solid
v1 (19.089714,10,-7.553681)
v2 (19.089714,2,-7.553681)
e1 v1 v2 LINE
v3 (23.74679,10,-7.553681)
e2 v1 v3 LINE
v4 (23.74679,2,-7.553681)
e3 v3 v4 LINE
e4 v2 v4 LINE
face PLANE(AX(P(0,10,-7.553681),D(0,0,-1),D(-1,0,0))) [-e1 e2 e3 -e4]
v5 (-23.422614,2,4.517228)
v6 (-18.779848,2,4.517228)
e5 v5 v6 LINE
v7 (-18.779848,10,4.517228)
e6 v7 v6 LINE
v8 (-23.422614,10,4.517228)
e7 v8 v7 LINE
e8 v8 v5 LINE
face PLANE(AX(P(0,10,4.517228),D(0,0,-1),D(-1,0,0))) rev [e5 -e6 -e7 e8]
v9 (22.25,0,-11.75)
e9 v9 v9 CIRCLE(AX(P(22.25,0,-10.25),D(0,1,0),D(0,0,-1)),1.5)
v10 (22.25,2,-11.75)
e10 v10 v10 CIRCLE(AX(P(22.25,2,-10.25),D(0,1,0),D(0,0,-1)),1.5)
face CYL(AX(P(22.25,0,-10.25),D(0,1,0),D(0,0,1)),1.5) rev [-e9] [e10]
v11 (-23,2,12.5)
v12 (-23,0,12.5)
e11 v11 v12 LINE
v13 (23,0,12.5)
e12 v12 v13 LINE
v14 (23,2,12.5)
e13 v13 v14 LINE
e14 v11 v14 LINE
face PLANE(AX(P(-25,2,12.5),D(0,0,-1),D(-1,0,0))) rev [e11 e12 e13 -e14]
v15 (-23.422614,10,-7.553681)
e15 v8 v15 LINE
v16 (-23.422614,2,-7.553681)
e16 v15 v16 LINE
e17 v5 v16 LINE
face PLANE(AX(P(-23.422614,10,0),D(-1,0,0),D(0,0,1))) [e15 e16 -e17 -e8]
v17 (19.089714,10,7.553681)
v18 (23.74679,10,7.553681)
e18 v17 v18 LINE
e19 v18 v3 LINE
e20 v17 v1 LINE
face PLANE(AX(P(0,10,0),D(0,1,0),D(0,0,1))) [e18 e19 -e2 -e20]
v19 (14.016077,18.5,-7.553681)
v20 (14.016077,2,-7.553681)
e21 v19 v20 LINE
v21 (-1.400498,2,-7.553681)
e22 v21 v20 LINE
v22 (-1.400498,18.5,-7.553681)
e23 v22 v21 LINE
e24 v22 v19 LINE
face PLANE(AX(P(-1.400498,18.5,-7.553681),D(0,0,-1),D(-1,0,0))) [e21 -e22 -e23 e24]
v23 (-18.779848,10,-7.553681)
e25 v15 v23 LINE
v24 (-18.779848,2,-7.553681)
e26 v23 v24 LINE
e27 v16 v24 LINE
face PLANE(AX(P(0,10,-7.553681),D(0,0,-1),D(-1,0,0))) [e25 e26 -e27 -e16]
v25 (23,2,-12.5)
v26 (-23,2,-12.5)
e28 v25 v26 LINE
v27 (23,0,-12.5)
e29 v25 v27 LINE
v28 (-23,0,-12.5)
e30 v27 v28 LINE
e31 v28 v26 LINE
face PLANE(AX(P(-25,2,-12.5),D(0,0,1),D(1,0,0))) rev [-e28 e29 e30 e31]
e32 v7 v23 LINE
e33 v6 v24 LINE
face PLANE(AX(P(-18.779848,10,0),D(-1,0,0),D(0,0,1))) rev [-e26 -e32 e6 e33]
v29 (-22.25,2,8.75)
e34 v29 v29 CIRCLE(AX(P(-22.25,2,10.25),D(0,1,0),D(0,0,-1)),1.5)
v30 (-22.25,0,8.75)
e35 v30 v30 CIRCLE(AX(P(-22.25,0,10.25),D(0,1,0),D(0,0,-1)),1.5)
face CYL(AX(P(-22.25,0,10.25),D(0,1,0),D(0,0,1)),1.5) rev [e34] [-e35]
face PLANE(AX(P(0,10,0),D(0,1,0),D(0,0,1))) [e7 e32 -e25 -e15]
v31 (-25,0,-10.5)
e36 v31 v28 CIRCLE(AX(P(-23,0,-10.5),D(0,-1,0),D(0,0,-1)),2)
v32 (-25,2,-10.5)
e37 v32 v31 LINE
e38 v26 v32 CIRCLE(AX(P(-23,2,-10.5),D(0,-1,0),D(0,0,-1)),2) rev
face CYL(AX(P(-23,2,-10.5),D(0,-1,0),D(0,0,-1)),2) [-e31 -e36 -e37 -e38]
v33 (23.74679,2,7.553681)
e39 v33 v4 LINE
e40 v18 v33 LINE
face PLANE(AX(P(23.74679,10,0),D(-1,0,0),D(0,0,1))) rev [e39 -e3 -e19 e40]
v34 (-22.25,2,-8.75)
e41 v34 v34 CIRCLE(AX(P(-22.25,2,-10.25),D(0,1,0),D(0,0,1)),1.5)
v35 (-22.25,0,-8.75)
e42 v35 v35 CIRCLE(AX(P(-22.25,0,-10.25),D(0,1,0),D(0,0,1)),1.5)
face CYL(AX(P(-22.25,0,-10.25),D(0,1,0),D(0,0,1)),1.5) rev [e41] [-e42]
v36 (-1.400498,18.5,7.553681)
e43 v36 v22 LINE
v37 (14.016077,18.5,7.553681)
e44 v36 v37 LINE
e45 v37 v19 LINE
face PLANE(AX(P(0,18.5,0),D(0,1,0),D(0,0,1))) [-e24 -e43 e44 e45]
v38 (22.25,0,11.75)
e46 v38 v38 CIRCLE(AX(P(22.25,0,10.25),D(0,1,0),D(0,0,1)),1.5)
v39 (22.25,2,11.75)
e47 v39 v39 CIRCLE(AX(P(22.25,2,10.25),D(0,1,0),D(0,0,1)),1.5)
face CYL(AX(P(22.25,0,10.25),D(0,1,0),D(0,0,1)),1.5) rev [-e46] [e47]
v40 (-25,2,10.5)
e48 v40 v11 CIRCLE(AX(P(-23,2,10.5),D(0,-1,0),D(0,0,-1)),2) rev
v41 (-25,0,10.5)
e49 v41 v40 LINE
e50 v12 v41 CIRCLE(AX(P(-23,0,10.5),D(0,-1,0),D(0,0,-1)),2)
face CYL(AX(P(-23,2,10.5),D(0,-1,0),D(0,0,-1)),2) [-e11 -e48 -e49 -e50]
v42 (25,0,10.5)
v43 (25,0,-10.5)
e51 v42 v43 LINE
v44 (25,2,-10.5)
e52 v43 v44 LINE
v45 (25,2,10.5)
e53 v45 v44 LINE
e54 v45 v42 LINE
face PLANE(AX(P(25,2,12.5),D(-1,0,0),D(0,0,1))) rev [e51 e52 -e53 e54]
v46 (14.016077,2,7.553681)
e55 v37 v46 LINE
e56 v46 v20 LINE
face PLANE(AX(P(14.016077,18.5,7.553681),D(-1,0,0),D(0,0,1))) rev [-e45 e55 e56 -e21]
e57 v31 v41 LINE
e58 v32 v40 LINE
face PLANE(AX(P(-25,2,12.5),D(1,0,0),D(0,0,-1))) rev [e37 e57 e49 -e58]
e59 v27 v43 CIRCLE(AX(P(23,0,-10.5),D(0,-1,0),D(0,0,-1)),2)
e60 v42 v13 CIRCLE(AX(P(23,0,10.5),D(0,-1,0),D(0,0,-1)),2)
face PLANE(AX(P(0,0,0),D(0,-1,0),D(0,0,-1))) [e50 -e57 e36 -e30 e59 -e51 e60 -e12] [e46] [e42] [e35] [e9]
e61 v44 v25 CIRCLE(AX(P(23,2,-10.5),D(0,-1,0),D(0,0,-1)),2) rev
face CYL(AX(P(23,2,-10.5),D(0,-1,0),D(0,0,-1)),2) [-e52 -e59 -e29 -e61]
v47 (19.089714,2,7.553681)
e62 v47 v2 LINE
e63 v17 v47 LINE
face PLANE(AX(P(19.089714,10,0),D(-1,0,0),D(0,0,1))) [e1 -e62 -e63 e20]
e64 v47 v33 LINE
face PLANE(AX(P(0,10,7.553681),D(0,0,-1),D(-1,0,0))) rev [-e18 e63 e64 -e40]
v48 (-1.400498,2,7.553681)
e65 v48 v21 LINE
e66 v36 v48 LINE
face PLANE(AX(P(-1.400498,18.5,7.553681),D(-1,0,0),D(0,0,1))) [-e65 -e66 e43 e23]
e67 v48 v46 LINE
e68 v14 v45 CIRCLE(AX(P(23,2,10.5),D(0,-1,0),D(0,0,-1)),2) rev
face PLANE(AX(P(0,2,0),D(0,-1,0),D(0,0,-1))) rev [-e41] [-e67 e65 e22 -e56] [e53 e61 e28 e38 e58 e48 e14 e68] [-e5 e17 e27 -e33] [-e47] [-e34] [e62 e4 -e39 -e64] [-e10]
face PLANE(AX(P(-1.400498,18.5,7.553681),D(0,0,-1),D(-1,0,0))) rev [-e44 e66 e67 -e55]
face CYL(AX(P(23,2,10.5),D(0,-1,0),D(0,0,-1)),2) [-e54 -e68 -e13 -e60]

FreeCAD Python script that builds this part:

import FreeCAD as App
import Part
import Sketcher


def edges_at(feature, points):
    """Names of the edges that pass closest to the given points."""
    edges = feature.Shape.Edges
    near = lambda p: min(range(len(edges)), key=lambda i: edges[i].distToShape(Part.Vertex(*p))[0])
    return sorted({f"Edge{near(p) + 1}" for p in points})

doc = App.newDocument("Part")
params = doc.addObject("Spreadsheet::Sheet", "Params")
for row, (alias, value) in enumerate([
    ("sketch1_width", "50 mm"),
    ("sketch1_height", "25 mm"),
    ("pad1_length", "2 mm"),
    ("pad2_length", "16.5 mm"),
    ("pad3_length", "8 mm"),
    ("sketch4_diameter", "3 mm"),
    ("fillet_radius", "2 mm"),
], start=1):
    params.set(f"A{row}", alias)
    params.set(f"B{row}", "=" + value)
    params.setAlias(f"B{row}", alias)

body = doc.addObject("PartDesign::Body", "Body")

# Sketch on XZ plane
sketch1 = body.newObject("Sketcher::SketchObject", "Sketch")
sketch1.AttachmentSupport = (doc.getObject("XZ_Plane"), [""])
sketch1.MapMode = "FlatFace"
sketch1.addGeometry(Part.LineSegment(App.Vector(-25, -12, 0), App.Vector(-25, 12, 0)), False)
sketch1.addGeometry(Part.LineSegment(App.Vector(-25, 12, 0), App.Vector(25, 12, 0)), False)
sketch1.addGeometry(Part.LineSegment(App.Vector(25, 12, 0), App.Vector(25, -12, 0)), False)
sketch1.addGeometry(Part.LineSegment(App.Vector(25, -12, 0), App.Vector(-25, -12, 0)), False)
sketch1.addConstraint(Sketcher.Constraint("Coincident", 0, 2, 1, 1))
sketch1.addConstraint(Sketcher.Constraint("Coincident", 1, 2, 2, 1))
sketch1.addConstraint(Sketcher.Constraint("Coincident", 2, 2, 3, 1))
sketch1.addConstraint(Sketcher.Constraint("Coincident", 3, 2, 0, 1))
sketch1.addConstraint(Sketcher.Constraint("Vertical", 0))
sketch1.addConstraint(Sketcher.Constraint("Horizontal", 1))
sketch1.addConstraint(Sketcher.Constraint("Vertical", 2))
sketch1.addConstraint(Sketcher.Constraint("Horizontal", 3))
sketch1.addConstraint(Sketcher.Constraint("Symmetric", 0, 2, 2, 2, -1, 1))
sketch1.addConstraint(Sketcher.Constraint("DistanceX", 1, 1, 1, 2, 50.0))
sketch1.addConstraint(Sketcher.Constraint("DistanceY", 0, 1, 0, 2, 25.0))
sketch1.setExpression("Constraints[9]", "Params.sketch1_width")
sketch1.setExpression("Constraints[10]", "Params.sketch1_height")
pad1 = body.newObject("PartDesign::Pad", "Pad")
pad1.Profile = sketch1
pad1.setExpression("Length", "Params.pad1_length")
pad1.Reversed = True

# Sketch on XZ plane
sketch2 = body.newObject("Sketcher::SketchObject", "Sketch001")
sketch2.AttachmentSupport = (doc.getObject("XZ_Plane"), [""])
sketch2.MapMode = "FlatFace"
sketch2.AttachmentOffset = App.Placement(App.Vector(0, 0, -2), App.Rotation())
sketch2.addGeometry(Part.LineSegment(App.Vector(-1, -8, 0), App.Vector(-1, 8, 0)), False)
sketch2.addGeometry(Part.LineSegment(App.Vector(-1, 8, 0), App.Vector(14, 8, 0)), False)
sketch2.addGeometry(Part.LineSegment(App.Vector(14, 8, 0), App.Vector(14, -8, 0)), False)
sketch2.addGeometry(Part.LineSegment(App.Vector(14, -8, 0), App.Vector(-1, -8, 0)), False)
sketch2.addConstraint(Sketcher.Constraint("Coincident", 0, 2, 1, 1))
sketch2.addConstraint(Sketcher.Constraint("Coincident", 1, 2, 2, 1))
sketch2.addConstraint(Sketcher.Constraint("Coincident", 2, 2, 3, 1))
sketch2.addConstraint(Sketcher.Constraint("Coincident", 3, 2, 0, 1))
sketch2.addConstraint(Sketcher.Constraint("Vertical", 0))
sketch2.addConstraint(Sketcher.Constraint("Horizontal", 1))
sketch2.addConstraint(Sketcher.Constraint("Vertical", 2))
sketch2.addConstraint(Sketcher.Constraint("Horizontal", 3))
sketch2.addConstraint(Sketcher.Constraint("DistanceY", 0, 1, 0, 2, 15.107362))
sketch2.addConstraint(Sketcher.Constraint("DistanceX", 1, 1, 1, 2, 15.416575))
sketch2.addConstraint(Sketcher.Constraint("DistanceY", -1, 1, 0, 2, 7.553681))
sketch2.addConstraint(Sketcher.Constraint("DistanceX", 0, 2, -1, 1, 1.400498))
pad2 = body.newObject("PartDesign::Pad", "Pad001")
pad2.Profile = sketch2
pad2.setExpression("Length", "Params.pad2_length")
pad2.Reversed = True

# Sketch on XZ plane
sketch3 = body.newObject("Sketcher::SketchObject", "Sketch002")
sketch3.AttachmentSupport = (doc.getObject("XZ_Plane"), [""])
sketch3.MapMode = "FlatFace"
sketch3.AttachmentOffset = App.Placement(App.Vector(0, 0, -2), App.Rotation())
sketch3.addGeometry(Part.LineSegment(App.Vector(-23.4, -7.6, 0), App.Vector(-23.4, 4.5, 0)), False)
sketch3.addGeometry(Part.LineSegment(App.Vector(-23.4, 4.5, 0), App.Vector(-18.8, 4.5, 0)), False)
sketch3.addGeometry(Part.LineSegment(App.Vector(-18.8, 4.5, 0), App.Vector(-18.8, -7.6, 0)), False)
sketch3.addGeometry(Part.LineSegment(App.Vector(-18.8, -7.6, 0), App.Vector(-23.4, -7.6, 0)), False)
sketch3.addGeometry(Part.LineSegment(App.Vector(19.1, -7.6, 0), App.Vector(19.1, 7.6, 0)), False)
sketch3.addGeometry(Part.LineSegment(App.Vector(19.1, 7.6, 0), App.Vector(23.7, 7.6, 0)), False)
sketch3.addGeometry(Part.LineSegment(App.Vector(23.7, 7.6, 0), App.Vector(23.7, -7.6, 0)), False)
sketch3.addGeometry(Part.LineSegment(App.Vector(23.7, -7.6, 0), App.Vector(19.1, -7.6, 0)), False)
sketch3.addConstraint(Sketcher.Constraint("Coincident", 0, 2, 1, 1))
sketch3.addConstraint(Sketcher.Constraint("Coincident", 1, 2, 2, 1))
sketch3.addConstraint(Sketcher.Constraint("Coincident", 2, 2, 3, 1))
sketch3.addConstraint(Sketcher.Constraint("Coincident", 3, 2, 0, 1))
sketch3.addConstraint(Sketcher.Constraint("Coincident", 4, 2, 5, 1))
sketch3.addConstraint(Sketcher.Constraint("Coincident", 5, 2, 6, 1))
sketch3.addConstraint(Sketcher.Constraint("Coincident", 6, 2, 7, 1))
sketch3.addConstraint(Sketcher.Constraint("Coincident", 7, 2, 4, 1))
sketch3.addConstraint(Sketcher.Constraint("Vertical", 0))
sketch3.addConstraint(Sketcher.Constraint("Horizontal", 1))
sketch3.addConstraint(Sketcher.Constraint("Vertical", 2))
sketch3.addConstraint(Sketcher.Constraint("Horizontal", 3))
sketch3.addConstraint(Sketcher.Constraint("Vertical", 4))
sketch3.addConstraint(Sketcher.Constraint("Horizontal", 5))
sketch3.addConstraint(Sketcher.Constraint("Vertical", 6))
sketch3.addConstraint(Sketcher.Constraint("Horizontal", 7))
sketch3.addConstraint(Sketcher.Constraint("Horizontal", 3, 2, 6, 2))
sketch3.addConstraint(Sketcher.Constraint("DistanceY", 0, 1, 0, 2, 12.070909))
sketch3.addConstraint(Sketcher.Constraint("DistanceY", 4, 1, 4, 2, 15.107362))
sketch3.addConstraint(Sketcher.Constraint("DistanceX", 1, 1, 1, 2, 4.642767))
sketch3.addConstraint(Sketcher.Constraint("DistanceX", 5, 1, 5, 2, 4.657077))
sketch3.addConstraint(Sketcher.Constraint("DistanceY", 2, 2, -1, 1, 7.553681))
sketch3.addConstraint(Sketcher.Constraint("DistanceX", -1, 1, 5, 2, 23.74679))
sketch3.addConstraint(Sketcher.Constraint("DistanceX", 1, 2, 4, 2, 37.869561))
pad3 = body.newObject("PartDesign::Pad", "Pad002")
pad3.Profile = sketch3
pad3.setExpression("Length", "Params.pad3_length")
pad3.Reversed = True

# Sketch on XZ plane
sketch4 = body.newObject("Sketcher::SketchObject", "Sketch003")
sketch4.AttachmentSupport = (doc.getObject("XZ_Plane"), [""])
sketch4.MapMode = "FlatFace"
sketch4.AttachmentOffset = App.Placement(App.Vector(0, 0, -2), App.Rotation())
sketch4.addGeometry(Part.Circle(App.Vector(-22.2, -10.2, 0), App.Vector(0, 0, 1), 1.5), False)
sketch4.addGeometry(Part.Circle(App.Vector(22.2, -10.2, 0), App.Vector(0, 0, 1), 1.5), False)
sketch4.addGeometry(Part.Circle(App.Vector(22.2, 10.2, 0), App.Vector(0, 0, 1), 1.5), False)
sketch4.addGeometry(Part.Circle(App.Vector(-22.2, 10.2, 0), App.Vector(0, 0, 1), 1.5), False)
sketch4.addConstraint(Sketcher.Constraint("Equal", 0, 1))
sketch4.addConstraint(Sketcher.Constraint("Equal", 1, 2))
sketch4.addConstraint(Sketcher.Constraint("Equal", 2, 3))
sketch4.addConstraint(Sketcher.Constraint("Symmetric", 0, 3, 2, 3, -1, 1))
sketch4.addConstraint(Sketcher.Constraint("Symmetric", 1, 3, 3, 3, -1, 1))
sketch4.addConstraint(Sketcher.Constraint("Symmetric", 0, 3, 1, 3, -2))
sketch4.addConstraint(Sketcher.Constraint("Diameter", 0, 3.0))
sketch4.addConstraint(Sketcher.Constraint("DistanceX", 0, 3, 1, 3, 44.5))
sketch4.addConstraint(Sketcher.Constraint("DistanceY", 1, 3, 2, 3, 20.5))
sketch4.setExpression("Constraints[6]", "Params.sketch4_diameter")
pocket1 = body.newObject("PartDesign::Pocket", "Pocket")
pocket1.Profile = sketch4
pocket1.Type = "ThroughAll"
pocket1.Reversed = True
doc.recompute()

fillet = body.newObject("PartDesign::Fillet", "Fillet")
fillet.Base = (pocket1, edges_at(pocket1, [
    (25, 1, 12.5),
    (-25, 1, 12.5),
    (-25, 1, -12.5),
    (25, 1, -12.5),
]))
fillet.setExpression("Radius", "Params.fillet_radius")

doc.recompute()
